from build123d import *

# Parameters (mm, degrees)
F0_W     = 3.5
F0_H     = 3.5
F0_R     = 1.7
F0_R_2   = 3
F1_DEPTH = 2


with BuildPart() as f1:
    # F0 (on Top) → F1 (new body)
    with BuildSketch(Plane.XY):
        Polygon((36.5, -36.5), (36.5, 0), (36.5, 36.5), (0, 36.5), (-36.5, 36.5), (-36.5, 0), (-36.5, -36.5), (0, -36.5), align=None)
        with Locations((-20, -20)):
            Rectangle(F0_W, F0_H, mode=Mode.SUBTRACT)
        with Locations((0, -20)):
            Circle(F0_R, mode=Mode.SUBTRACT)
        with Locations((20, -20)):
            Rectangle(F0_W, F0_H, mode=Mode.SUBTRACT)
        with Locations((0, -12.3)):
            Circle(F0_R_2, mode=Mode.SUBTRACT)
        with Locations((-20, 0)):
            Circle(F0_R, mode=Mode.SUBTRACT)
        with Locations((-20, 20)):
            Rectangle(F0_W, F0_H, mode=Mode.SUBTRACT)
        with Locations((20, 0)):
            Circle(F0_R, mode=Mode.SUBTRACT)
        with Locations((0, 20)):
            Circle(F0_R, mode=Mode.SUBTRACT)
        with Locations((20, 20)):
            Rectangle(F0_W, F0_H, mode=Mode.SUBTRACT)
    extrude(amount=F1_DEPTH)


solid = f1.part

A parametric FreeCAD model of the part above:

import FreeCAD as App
import Part
import Sketcher

doc = App.newDocument("Part")
body = doc.addObject("PartDesign::Body", "Body")

# Sketch on XY plane
sketch1 = body.newObject("Sketcher::SketchObject", "Sketch")
sketch1.AttachmentSupport = (doc.getObject("XY_Plane"), [""])
sketch1.MapMode = "FlatFace"
sketch1.addGeometry([
    Part.LineSegment(App.Vector(36.5, -36.5, 0), App.Vector(36.5, 36.5, 0)),  # 0
    Part.LineSegment(App.Vector(36.5, 36.5, 0), App.Vector(-36.5, 36.5, 0)),  # 1
    Part.LineSegment(App.Vector(-36.5, 36.5, 0), App.Vector(-36.5, -36.5, 0)),  # 2
    Part.LineSegment(App.Vector(-36.5, -36.5, 0), App.Vector(36.5, -36.5, 0)),  # 3
    Part.LineSegment(App.Vector(-18.2, -21.8, 0), App.Vector(-21.8, -21.8, 0)),  # 4
    Part.LineSegment(App.Vector(-21.8, -21.8, 0), App.Vector(-21.8, -18.2, 0)),  # 5
    Part.LineSegment(App.Vector(-21.8, -18.2, 0), App.Vector(-18.2, -18.2, 0)),  # 6
    Part.LineSegment(App.Vector(-18.2, -18.2, 0), App.Vector(-18.2, -21.8, 0)),  # 7
    Part.Circle(App.Vector(0, -20, 0), App.Vector(0, 0, 1), 1.7),  # 8
    Part.Circle(App.Vector(0, -12.3, 0), App.Vector(0, 0, 1), 3),  # 9
    Part.LineSegment(App.Vector(21.8, -21.8, 0), App.Vector(18.2, -21.8, 0)),  # 10
    Part.LineSegment(App.Vector(18.2, -21.8, 0), App.Vector(18.2, -18.2, 0)),  # 11
    Part.LineSegment(App.Vector(18.2, -18.2, 0), App.Vector(21.8, -18.2, 0)),  # 12
    Part.LineSegment(App.Vector(21.8, -18.2, 0), App.Vector(21.8, -21.8, 0)),  # 13
    Part.Circle(App.Vector(-20, 0, 0), App.Vector(0, 0, 1), 1.7),  # 14
    Part.LineSegment(App.Vector(-18.2, 18.2, 0), App.Vector(-21.8, 18.2, 0)),  # 15
    Part.LineSegment(App.Vector(-21.8, 18.2, 0), App.Vector(-21.8, 21.8, 0)),  # 16
    Part.LineSegment(App.Vector(-21.8, 21.8, 0), App.Vector(-18.2, 21.8, 0)),  # 17
    Part.LineSegment(App.Vector(-18.2, 21.8, 0), App.Vector(-18.2, 18.2, 0)),  # 18
    Part.Circle(App.Vector(20, 0, 0), App.Vector(0, 0, 1), 1.7),  # 19
    Part.Circle(App.Vector(0, 20, 0), App.Vector(0, 0, 1), 1.7),  # 20
    Part.LineSegment(App.Vector(21.8, 18.2, 0), App.Vector(18.2, 18.2, 0)),  # 21
    Part.LineSegment(App.Vector(18.2, 18.2, 0), App.Vector(18.2, 21.8, 0)),  # 22
    Part.LineSegment(App.Vector(18.2, 21.8, 0), App.Vector(21.8, 21.8, 0)),  # 23
    Part.LineSegment(App.Vector(21.8, 21.8, 0), App.Vector(21.8, 18.2, 0)),  # 24
], False)
sketch1.addConstraint([
    Sketcher.Constraint("Coincident", 0, 2, 1, 1),
    Sketcher.Constraint("Coincident", 1, 2, 2, 1),
    Sketcher.Constraint("Coincident", 2, 2, 3, 1),
    Sketcher.Constraint("Coincident", 3, 2, 0, 1),
    Sketcher.Constraint("Coincident", 4, 2, 5, 1),
    Sketcher.Constraint("Coincident", 5, 2, 6, 1),
    Sketcher.Constraint("Coincident", 6, 2, 7, 1),
    Sketcher.Constraint("Coincident", 7, 2, 4, 1),
    Sketcher.Constraint("Coincident", 10, 2, 11, 1),
    Sketcher.Constraint("Coincident", 11, 2, 12, 1),
    Sketcher.Constraint("Coincident", 12, 2, 13, 1),
    Sketcher.Constraint("Coincident", 13, 2, 10, 1),
    Sketcher.Constraint("Coincident", 15, 2, 16, 1),
    Sketcher.Constraint("Coincident", 16, 2, 17, 1),
    Sketcher.Constraint("Coincident", 17, 2, 18, 1),
    Sketcher.Constraint("Coincident", 18, 2, 15, 1),
    Sketcher.Constraint("Coincident", 21, 2, 22, 1),
    Sketcher.Constraint("Coincident", 22, 2, 23, 1),
    Sketcher.Constraint("Coincident", 23, 2, 24, 1),
    Sketcher.Constraint("Coincident", 24, 2, 21, 1),
    Sketcher.Constraint("Vertical", 0),
    Sketcher.Constraint("Horizontal", 1),
    Sketcher.Constraint("Vertical", 2),
    Sketcher.Constraint("Horizontal", 3),
    Sketcher.Constraint("Horizontal", 4),
    Sketcher.Constraint("Vertical", 5),
    Sketcher.Constraint("Horizontal", 6),
    Sketcher.Constraint("Vertical", 7),
    Sketcher.Constraint("Horizontal", 10),
    Sketcher.Constraint("Vertical", 11),
    Sketcher.Constraint("Horizontal", 12),
    Sketcher.Constraint("Vertical", 13),
    Sketcher.Constraint("Horizontal", 15),
    Sketcher.Constraint("Vertical", 16),
    Sketcher.Constraint("Horizontal", 17),
    Sketcher.Constraint("Vertical", 18),
    Sketcher.Constraint("Horizontal", 21),
    Sketcher.Constraint("Vertical", 22),
    Sketcher.Constraint("Horizontal", 23),
    Sketcher.Constraint("Vertical", 24),
    Sketcher.Constraint("Equal", 8, 14),
    Sketcher.Constraint("Equal", 14, 19),
    Sketcher.Constraint("Equal", 19, 20),
    Sketcher.Constraint("Symmetric", 14, 3, 19, 3, -1, 1),
    Sketcher.Constraint("Symmetric", 8, 3, 20, 3, -1, 1),
    Sketcher.Constraint("Symmetric", 0, 2, 2, 2, -1, 1),
    Sketcher.Constraint("Symmetric", 12, 2, 15, 2, -1, 1),
    Sketcher.Constraint("Symmetric", 10, 2, 17, 2, -1, 1),
    Sketcher.Constraint("Symmetric", 6, 2, 21, 2, -1, 1),
    Sketcher.Constraint("Symmetric", 4, 2, 23, 2, -1, 1),
    Sketcher.Constraint("Symmetric", 7, 2, 10, 2, -2),
    Sketcher.Constraint("Symmetric", 5, 2, 12, 2, -2),
    Sketcher.Constraint("PointOnObject", 8, 3, -2),
    Sketcher.Constraint("PointOnObject", 9, 3, -2),
    Sketcher.Constraint("PointOnObject", 14, 3, -1),
    Sketcher.Constraint("Equal", 3, 0),
    Sketcher.Constraint("Equal", 23, 5),
    Sketcher.Constraint("Diameter", 9, 6.0),
    Sketcher.Constraint("Diameter", 8, 3.4),
    Sketcher.Constraint("DistanceX", 1, 2, 1, 1, 73.0),
    Sketcher.Constraint("DistanceX", 4, 2, 4, 1, 3.5),
    Sketcher.Constraint("DistanceY", 8, 3, -1, 1, 20.0),
    Sketcher.Constraint("DistanceX", 14, 3, -1, 1, 20.0),
    Sketcher.Constraint("DistanceY", 5, 2, 16, 2, 40.0),
    Sketcher.Constraint("DistanceY", 9, 3, -1, 1, 12.3),
    Sketcher.Constraint("DistanceX", 7, 2, 10, 2, 36.5),
])
pad1 = body.newObject("PartDesign::Pad", "Pad")
pad1.Profile = sketch1
pad1.Length = 2

doc.recompute()
